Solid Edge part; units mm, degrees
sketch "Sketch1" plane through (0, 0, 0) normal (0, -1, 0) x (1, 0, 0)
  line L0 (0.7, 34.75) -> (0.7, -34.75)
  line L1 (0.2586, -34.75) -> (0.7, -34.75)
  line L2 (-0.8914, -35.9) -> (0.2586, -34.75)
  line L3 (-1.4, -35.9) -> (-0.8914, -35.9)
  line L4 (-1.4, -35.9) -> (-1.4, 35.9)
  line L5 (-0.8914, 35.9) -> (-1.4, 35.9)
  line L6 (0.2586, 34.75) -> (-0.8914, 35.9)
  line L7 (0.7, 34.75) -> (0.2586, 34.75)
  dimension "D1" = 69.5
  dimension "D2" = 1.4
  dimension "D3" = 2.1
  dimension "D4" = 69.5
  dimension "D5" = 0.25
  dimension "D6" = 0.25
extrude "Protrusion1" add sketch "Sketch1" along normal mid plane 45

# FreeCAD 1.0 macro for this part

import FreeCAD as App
import Part
import Sketcher
Q = App.Units.Quantity

doc = App.newDocument("Part")
params = doc.addObject("Spreadsheet::Sheet", "Params")
for row, (alias, value) in enumerate([
    ("sketch1_height", "69.5 mm"),
    ("sketch1_height2", "71.8 mm"),
    ("pad1_length", "45 mm"),
], start=1):
    params.set(f"A{row}", alias)
    params.set(f"B{row}", "=" + value)
    params.setAlias(f"B{row}", alias)

body = doc.addObject("PartDesign::Body", "Body")

sketch1 = body.newObject("Sketcher::SketchObject", "Sketch")
sketch1.AttachmentSupport = (doc.getObject("XZ_Plane"), [""])
sketch1.MapMode = "FlatFace"
sketch1.addGeometry([
    Part.LineSegment(App.Vector(0.7, -34.75, 0), App.Vector(0.7, 34.75, 0)),
    Part.LineSegment(App.Vector(0.7, 34.75, 0), App.Vector(0.2586, 34.75, 0)),
    Part.LineSegment(App.Vector(0.2586, 34.75, 0), App.Vector(-0.8914, 35.9, 0)),
    Part.LineSegment(App.Vector(-0.8914, 35.9, 0), App.Vector(-1.4, 35.9, 0)),
    Part.LineSegment(App.Vector(-1.4, 35.9, 0), App.Vector(-1.4, -35.9, 0)),
    Part.LineSegment(App.Vector(-1.4, -35.9, 0), App.Vector(-0.8914, -35.9, 0)),
    Part.LineSegment(App.Vector(-0.8914, -35.9, 0), App.Vector(0.2586, -34.75, 0)),
    Part.LineSegment(App.Vector(0.2586, -34.75, 0), App.Vector(0.7, -34.75, 0)),
], False)
sketch1.addConstraint([
    Sketcher.Constraint("Coincident", 0, 2, 1, 1),
    Sketcher.Constraint("Coincident", 1, 2, 2, 1),
    Sketcher.Constraint("Coincident", 2, 2, 3, 1),
    Sketcher.Constraint("Coincident", 3, 2, 4, 1),
    Sketcher.Constraint("Coincident", 4, 2, 5, 1),
    Sketcher.Constraint("Coincident", 5, 2, 6, 1),
    Sketcher.Constraint("Coincident", 6, 2, 7, 1),
    Sketcher.Constraint("Coincident", 7, 2, 0, 1),
    Sketcher.Constraint("Vertical", 0),
    Sketcher.Constraint("Horizontal", 1),
    Sketcher.Constraint("Horizontal", 3),
    Sketcher.Constraint("Vertical", 4),
    Sketcher.Constraint("Horizontal", 5),
    Sketcher.Constraint("Horizontal", 7),
    Sketcher.Constraint("Symmetric", 2, 2, 5, 2, -1),
    Sketcher.Constraint("Symmetric", 1, 2, 6, 2, -1),
    Sketcher.Constraint("Perpendicular", 2, 6),
    Sketcher.Constraint("DistanceX", -1, 1, 0, 2, Q("0.7 mm")),
    Sketcher.Constraint("DistanceY", 0, 1, 0, 2, Q("69.5 mm")),
    Sketcher.Constraint("DistanceY", 4, 2, 4, 1, Q("71.8 mm")),
    Sketcher.Constraint("DistanceX", 3, 2, -1, 1, Q("1.4 mm")),
    Sketcher.Constraint("DistanceX", 1, 2, 1, 1, Q("0.4414 mm")),
])
sketch1.setExpression("Constraints[18]", "Params.sketch1_height")
sketch1.setExpression("Constraints[19]", "Params.sketch1_height2")
pad1 = body.newObject("PartDesign::Pad", "Pad")
pad1.Profile = sketch1
pad1.setExpression("Length", "Params.pad1_length")
pad1.Midplane = True

doc.recompute()
